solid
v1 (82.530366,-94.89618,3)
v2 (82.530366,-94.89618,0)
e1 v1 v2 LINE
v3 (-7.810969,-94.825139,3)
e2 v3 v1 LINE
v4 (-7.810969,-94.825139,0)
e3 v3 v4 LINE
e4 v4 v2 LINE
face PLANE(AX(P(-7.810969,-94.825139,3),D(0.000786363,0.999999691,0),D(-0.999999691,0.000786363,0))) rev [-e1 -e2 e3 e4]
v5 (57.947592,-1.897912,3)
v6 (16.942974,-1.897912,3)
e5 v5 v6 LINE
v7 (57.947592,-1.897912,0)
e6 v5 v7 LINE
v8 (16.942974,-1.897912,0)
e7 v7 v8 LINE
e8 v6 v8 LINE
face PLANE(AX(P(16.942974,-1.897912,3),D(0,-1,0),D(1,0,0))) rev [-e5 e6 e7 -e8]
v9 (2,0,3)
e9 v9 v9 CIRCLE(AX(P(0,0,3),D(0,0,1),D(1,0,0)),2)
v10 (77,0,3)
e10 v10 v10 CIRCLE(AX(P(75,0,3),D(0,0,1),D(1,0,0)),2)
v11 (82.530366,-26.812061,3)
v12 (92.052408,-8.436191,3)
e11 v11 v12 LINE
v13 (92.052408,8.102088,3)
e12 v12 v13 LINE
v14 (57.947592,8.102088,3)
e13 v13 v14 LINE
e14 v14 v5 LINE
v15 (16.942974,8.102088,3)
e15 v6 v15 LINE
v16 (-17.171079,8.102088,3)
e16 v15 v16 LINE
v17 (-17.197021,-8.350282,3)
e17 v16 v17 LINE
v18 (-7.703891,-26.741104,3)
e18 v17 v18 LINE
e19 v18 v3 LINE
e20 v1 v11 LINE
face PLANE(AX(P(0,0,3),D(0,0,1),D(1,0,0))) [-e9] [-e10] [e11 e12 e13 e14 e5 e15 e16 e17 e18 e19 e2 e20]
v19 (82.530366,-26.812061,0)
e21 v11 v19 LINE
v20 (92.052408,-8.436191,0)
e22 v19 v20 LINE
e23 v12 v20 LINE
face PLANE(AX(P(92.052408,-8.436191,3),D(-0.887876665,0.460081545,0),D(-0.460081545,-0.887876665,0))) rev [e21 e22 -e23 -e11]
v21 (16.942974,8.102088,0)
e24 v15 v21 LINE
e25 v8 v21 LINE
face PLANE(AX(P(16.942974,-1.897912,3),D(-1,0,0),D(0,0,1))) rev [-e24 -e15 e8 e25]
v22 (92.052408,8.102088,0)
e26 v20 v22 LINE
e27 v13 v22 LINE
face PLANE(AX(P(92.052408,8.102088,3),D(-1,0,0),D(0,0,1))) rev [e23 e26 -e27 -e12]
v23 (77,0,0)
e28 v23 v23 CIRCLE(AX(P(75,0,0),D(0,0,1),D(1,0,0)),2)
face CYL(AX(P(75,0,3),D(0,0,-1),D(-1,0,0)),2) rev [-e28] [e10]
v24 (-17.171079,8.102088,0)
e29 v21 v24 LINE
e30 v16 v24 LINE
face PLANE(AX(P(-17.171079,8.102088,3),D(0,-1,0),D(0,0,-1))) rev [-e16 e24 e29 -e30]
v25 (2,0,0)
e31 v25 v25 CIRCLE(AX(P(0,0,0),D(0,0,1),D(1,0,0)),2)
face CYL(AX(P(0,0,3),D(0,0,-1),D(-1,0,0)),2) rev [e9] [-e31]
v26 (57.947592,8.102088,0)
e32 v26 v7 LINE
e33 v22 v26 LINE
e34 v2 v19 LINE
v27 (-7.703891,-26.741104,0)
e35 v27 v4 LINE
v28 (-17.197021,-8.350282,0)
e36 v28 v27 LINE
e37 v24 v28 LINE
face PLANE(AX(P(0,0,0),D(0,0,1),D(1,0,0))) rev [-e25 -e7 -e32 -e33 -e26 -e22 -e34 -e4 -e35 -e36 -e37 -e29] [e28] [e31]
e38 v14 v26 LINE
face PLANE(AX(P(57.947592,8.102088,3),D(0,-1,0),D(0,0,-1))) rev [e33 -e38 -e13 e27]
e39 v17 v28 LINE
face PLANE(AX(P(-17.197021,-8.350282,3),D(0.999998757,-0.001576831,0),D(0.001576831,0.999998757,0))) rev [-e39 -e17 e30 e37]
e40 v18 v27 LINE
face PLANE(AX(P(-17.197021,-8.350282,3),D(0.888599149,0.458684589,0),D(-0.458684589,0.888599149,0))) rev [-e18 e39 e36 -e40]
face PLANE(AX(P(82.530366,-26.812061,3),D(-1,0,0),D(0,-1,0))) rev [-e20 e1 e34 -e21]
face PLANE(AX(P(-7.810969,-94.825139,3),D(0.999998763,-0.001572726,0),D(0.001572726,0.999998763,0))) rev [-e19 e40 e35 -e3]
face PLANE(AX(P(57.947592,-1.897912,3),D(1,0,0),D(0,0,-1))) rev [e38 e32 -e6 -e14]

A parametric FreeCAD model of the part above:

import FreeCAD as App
import Part
import Sketcher

doc = App.newDocument("Part")
body = doc.addObject("PartDesign::Body", "Body")

# Sketch on XY plane
sketch1 = body.newObject("Sketcher::SketchObject", "Sketch")
sketch1.AttachmentSupport = (doc.getObject("XY_Plane"), [""])
sketch1.MapMode = "FlatFace"
sketch1.addGeometry([
    Part.LineSegment(App.Vector(16.942974, 8.102088, 0), App.Vector(-17.171079, 8.102088, 0)),  # 0
    Part.LineSegment(App.Vector(-17.171079, 8.102088, 0), App.Vector(-17.197021, -8.350282, 0)),  # 1
    Part.LineSegment(App.Vector(-17.197021, -8.350282, 0), App.Vector(-7.703891, -26.741104, 0)),  # 2
    Part.LineSegment(App.Vector(-7.703891, -26.741104, 0), App.Vector(-7.810969, -94.825139, 0)),  # 3
    Part.LineSegment(App.Vector(-7.810969, -94.825139, 0), App.Vector(82.530366, -94.89618, 0)),  # 4
    Part.LineSegment(App.Vector(82.530366, -94.89618, 0), App.Vector(82.530366, -26.812061, 0)),  # 5
    Part.LineSegment(App.Vector(82.530366, -26.812061, 0), App.Vector(92.052408, -8.436191, 0)),  # 6
    Part.LineSegment(App.Vector(92.052408, -8.436191, 0), App.Vector(92.052408, 8.102088, 0)),  # 7
    Part.LineSegment(App.Vector(92.052408, 8.102088, 0), App.Vector(57.947592, 8.102088, 0)),  # 8
    Part.LineSegment(App.Vector(57.947592, 8.102088, 0), App.Vector(57.947592, -1.897912, 0)),  # 9
    Part.LineSegment(App.Vector(57.947592, -1.897912, 0), App.Vector(16.942974, -1.897912, 0)),  # 10
    Part.LineSegment(App.Vector(16.942974, -1.897912, 0), App.Vector(16.942974, 8.102088, 0)),  # 11
    Part.Circle(App.Vector(75, 0, 0), App.Vector(0, 0, 1), 2),  # 12
    Part.Circle(App.Vector(0, 0, 0), App.Vector(0, 0, 1), 2),  # 13
], False)
sketch1.addConstraint([
    Sketcher.Constraint("Coincident", 0, 2, 1, 1),
    Sketcher.Constraint("Coincident", 1, 2, 2, 1),
    Sketcher.Constraint("Coincident", 2, 2, 3, 1),
    Sketcher.Constraint("Coincident", 3, 2, 4, 1),
    Sketcher.Constraint("Coincident", 4, 2, 5, 1),
    Sketcher.Constraint("Coincident", 5, 2, 6, 1),
    Sketcher.Constraint("Coincident", 6, 2, 7, 1),
    Sketcher.Constraint("Coincident", 7, 2, 8, 1),
    Sketcher.Constraint("Coincident", 8, 2, 9, 1),
    Sketcher.Constraint("Coincident", 9, 2, 10, 1),
    Sketcher.Constraint("Coincident", 10, 2, 11, 1),
    Sketcher.Constraint("Coincident", 11, 2, 0, 1),
    Sketcher.Constraint("Horizontal", 0),
    Sketcher.Constraint("Vertical", 5),
    Sketcher.Constraint("Vertical", 7),
    Sketcher.Constraint("Horizontal", 8),
    Sketcher.Constraint("Vertical", 9),
    Sketcher.Constraint("Horizontal", 10),
    Sketcher.Constraint("Vertical", 11),
    Sketcher.Constraint("Coincident", 13, 3, -1, 1),
    Sketcher.Constraint("Equal", 12, 13),
    Sketcher.Constraint("PointOnObject", 12, 3, -1),
    Sketcher.Constraint("Horizontal", 0, 2, 7, 2),
    Sketcher.Constraint("Equal", 2, 6),
    Sketcher.Constraint("Diameter", 12, 4.0),
    Sketcher.Constraint("DistanceY", 9, 2, 9, 1, 10.0),
    Sketcher.Constraint("DistanceX", -1, 1, 12, 3, 75.0),
    Sketcher.Constraint("DistanceX", 10, 2, 10, 1, 41.004618),
    Sketcher.Constraint("DistanceY", 5, 1, 5, 2, 68.084119),
    Sketcher.Constraint("DistanceY", 7, 1, 7, 2, 16.538279),
    Sketcher.Constraint("DistanceY", 4, 2, 1, 2, 86.545899),
    Sketcher.Constraint("DistanceX", 2, 2, 6, 2, 99.756299),
    Sketcher.Constraint("Distance", 1, 16.45239),
    Sketcher.Constraint("Distance", 2, 20.696422),
    Sketcher.Constraint("Distance", 3, 68.084119),
    Sketcher.Constraint("DistanceX", 0, 2, 0, 1, 34.114052),
    Sketcher.Constraint("DistanceX", 8, 2, 8, 1, 34.104816),
    Sketcher.Constraint("DistanceX", 0, 2, -1, 1, 17.171079),
    Sketcher.Constraint("DistanceY", -1, 1, 0, 2, 8.102088),
    Sketcher.Constraint("DistanceX", 1, 2, -1, 1, 17.197021),
    Sketcher.Constraint("DistanceX", 3, 2, -1, 1, 7.810969),
])
pad1 = body.newObject("PartDesign::Pad", "Pad")
pad1.Profile = sketch1
pad1.Length = 3

doc.recompute()
